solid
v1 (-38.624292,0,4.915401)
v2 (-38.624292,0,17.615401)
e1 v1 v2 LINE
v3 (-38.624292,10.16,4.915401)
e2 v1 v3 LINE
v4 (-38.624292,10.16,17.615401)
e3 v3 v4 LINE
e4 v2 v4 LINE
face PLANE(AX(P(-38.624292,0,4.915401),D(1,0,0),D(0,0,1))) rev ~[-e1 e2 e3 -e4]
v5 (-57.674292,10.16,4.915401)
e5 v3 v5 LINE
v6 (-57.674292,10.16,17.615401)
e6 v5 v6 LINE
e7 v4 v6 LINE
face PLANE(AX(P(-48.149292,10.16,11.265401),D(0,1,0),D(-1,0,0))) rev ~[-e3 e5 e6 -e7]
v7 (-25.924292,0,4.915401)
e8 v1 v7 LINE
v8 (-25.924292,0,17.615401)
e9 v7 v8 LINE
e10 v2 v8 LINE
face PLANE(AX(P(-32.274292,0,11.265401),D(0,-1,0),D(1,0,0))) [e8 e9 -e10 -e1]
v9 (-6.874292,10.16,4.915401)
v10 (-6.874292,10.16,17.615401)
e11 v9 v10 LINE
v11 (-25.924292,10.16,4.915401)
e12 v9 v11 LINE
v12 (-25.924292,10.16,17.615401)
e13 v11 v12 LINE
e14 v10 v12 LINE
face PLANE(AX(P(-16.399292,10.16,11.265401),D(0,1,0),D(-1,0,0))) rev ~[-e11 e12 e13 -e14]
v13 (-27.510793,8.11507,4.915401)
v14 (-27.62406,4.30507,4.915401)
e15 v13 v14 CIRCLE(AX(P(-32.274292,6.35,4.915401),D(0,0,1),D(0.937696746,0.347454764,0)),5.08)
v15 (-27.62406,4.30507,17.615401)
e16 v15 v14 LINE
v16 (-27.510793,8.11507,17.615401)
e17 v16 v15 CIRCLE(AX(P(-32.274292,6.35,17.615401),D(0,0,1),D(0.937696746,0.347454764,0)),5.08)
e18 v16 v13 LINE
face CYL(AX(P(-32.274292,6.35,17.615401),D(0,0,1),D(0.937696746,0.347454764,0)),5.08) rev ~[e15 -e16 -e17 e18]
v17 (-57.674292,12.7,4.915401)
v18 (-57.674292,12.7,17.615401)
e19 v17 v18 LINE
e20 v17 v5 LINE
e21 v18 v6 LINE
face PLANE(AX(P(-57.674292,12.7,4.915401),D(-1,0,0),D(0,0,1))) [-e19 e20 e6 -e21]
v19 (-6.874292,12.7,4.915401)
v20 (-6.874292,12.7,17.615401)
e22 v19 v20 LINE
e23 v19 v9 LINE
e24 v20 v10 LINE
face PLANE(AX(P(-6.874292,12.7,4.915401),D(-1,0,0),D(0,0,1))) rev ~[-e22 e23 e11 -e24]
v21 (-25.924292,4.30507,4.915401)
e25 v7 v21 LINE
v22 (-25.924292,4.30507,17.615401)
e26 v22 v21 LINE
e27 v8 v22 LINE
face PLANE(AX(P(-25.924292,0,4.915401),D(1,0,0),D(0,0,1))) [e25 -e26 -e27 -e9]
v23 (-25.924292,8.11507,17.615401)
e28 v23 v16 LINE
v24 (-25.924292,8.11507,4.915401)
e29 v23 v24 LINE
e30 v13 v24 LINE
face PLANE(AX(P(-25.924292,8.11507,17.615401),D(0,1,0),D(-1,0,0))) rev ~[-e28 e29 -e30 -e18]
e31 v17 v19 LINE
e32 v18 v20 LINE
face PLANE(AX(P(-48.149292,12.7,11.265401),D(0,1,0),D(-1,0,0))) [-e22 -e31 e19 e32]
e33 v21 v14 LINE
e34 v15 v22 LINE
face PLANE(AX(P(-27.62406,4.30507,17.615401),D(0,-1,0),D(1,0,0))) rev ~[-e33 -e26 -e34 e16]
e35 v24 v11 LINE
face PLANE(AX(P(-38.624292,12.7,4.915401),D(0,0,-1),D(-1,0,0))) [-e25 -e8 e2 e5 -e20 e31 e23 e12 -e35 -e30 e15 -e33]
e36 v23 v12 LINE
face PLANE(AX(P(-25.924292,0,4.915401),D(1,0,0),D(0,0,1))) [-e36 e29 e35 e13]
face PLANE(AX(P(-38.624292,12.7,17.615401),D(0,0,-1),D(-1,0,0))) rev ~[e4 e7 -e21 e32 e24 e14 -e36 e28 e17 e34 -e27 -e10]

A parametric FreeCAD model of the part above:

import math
import FreeCAD as App
import Part
import Sketcher
from FreeCAD import Vector
Q = App.Units.Quantity


def add_polygon(sketch, points):
    """Adds a closed chain of lines whose ends are joined by coincident constraints."""
    first, n = sketch.GeometryCount, len(points)
    for a, b in zip(points, points[1:] + points[:1]):
        sketch.addGeometry(Part.LineSegment(App.Vector(*a, 0), App.Vector(*b, 0)), False)
    for i in range(n):
        sketch.addConstraint(Sketcher.Constraint("Coincident", first + i, 2, first + (i + 1) % n, 1))

doc = App.newDocument("Part")
params = doc.addObject("Spreadsheet::Sheet", "Params")
for row, (alias, value) in enumerate([
    ("sketch1_width", "0.5 in"),
    ("pad1_length", "0.5 in"),
    ("sketch2_radius", "0.2 in"),
    ("sketch2_height", "0.15 in"),
    ("pocket1_length", "1.5 in"),
    ("sketch3_height", "0.5 in"),
    ("sketch3_width", "0.75 in"),
    ("pad2_length", "0.1 in"),
], start=1):
    params.set(f"A{row}", alias)
    params.set(f"B{row}", "=" + value)
    params.setAlias(f"B{row}", alias)

body = doc.addObject("PartDesign::Body", "Body")

# Sketch on XZ plane
sketch1 = doc.addObject("Sketcher::SketchObject", "Sketch")
body.addObject(sketch1)
sketch1.AttachmentSupport = (doc.XZ_Plane, [""])
sketch1.MapMode = "FlatFace"
add_polygon(sketch1, [(-39, 18), (-39, 5), (-26, 5), (-26, 18)])  # lines 0-3
sketch1.addConstraint([
    Sketcher.Constraint("Vertical", 0),
    Sketcher.Constraint("Horizontal", 1),
    Sketcher.Constraint("Vertical", 2),
    Sketcher.Constraint("Horizontal", 3),
    Sketcher.Constraint("Equal", 3, 0),
    Sketcher.Constraint("DistanceX", 1, 1, 1, 2, Q("0.5 in")),
    Sketcher.Constraint("DistanceY", -1, 1, 0, 2, Q("4.915401 mm")),
    Sketcher.Constraint("DistanceX", 0, 2, -1, 1, Q("38.624292 mm")),
])
sketch1.setExpression("Constraints[9]", "Params.sketch1_width")
pad1 = doc.addObject("PartDesign::Pad", "Pad")
body.addObject(pad1)
pad1.Profile = sketch1
pad1.setExpression("Length", "Params.pad1_length")
pad1.Reversed = True

# Sketch on XY plane
sketch2 = doc.addObject("Sketcher::SketchObject", "Sketch001")
body.addObject(sketch2)
sketch2.AttachmentSupport = (doc.XY_Plane, [""])
sketch2.MapMode = "FlatFace"
sketch2.AttachmentOffset = App.Placement(Vector(0, 0, 17.615401), App.Rotation())
sketch2.addGeometry([
    Part.LineSegment(Vector(-25.9, 8.1, 0), Vector(-27.5, 8.1, 0)),
    Part.ArcOfCircle(Part.Circle(Vector(-32.3, 6.3, 0), Vector(0, 0, 1), 5.1), math.radians(20), math.radians(336)),
    Part.LineSegment(Vector(-27.6, 4.3, 0), Vector(-25.9, 4.3, 0)),
    Part.LineSegment(Vector(-25.9, 4.3, 0), Vector(-25.9, 8.1, 0)),
], False)
sketch2.addConstraint([
    Sketcher.Constraint("Coincident", 0, 2, 1, 1),
    Sketcher.Constraint("Coincident", 1, 2, 2, 1),
    Sketcher.Constraint("Coincident", 2, 2, 3, 1),
    Sketcher.Constraint("Coincident", 3, 2, 0, 1),
    Sketcher.Constraint("Horizontal", 0),
    Sketcher.Constraint("Horizontal", 2),
    Sketcher.Constraint("Vertical", 3),
    Sketcher.Constraint("Radius", 1, Q("0.2 in")),
    Sketcher.Constraint("DistanceY", 3, 1, 3, 2, Q("0.15 in")),
    Sketcher.Constraint("DistanceY", -1, 1, 1, 3, Q("0.25 in")),
    Sketcher.Constraint("DistanceX", 1, 3, 2, 2, Q("0.25 in")),
    Sketcher.Constraint("DistanceX", 0, 2, 0, 1, Q("1.586501 mm")),
    Sketcher.Constraint("DistanceX", 1, 2, -1, 1, Q("27.62406 mm")),
])
sketch2.setExpression("Constraints[7]", "Params.sketch2_radius")
sketch2.setExpression("Constraints[8]", "Params.sketch2_height")
pocket1 = doc.addObject("PartDesign::Pocket", "Pocket")
body.addObject(pocket1)
pocket1.Profile = sketch2
pocket1.setExpression("Length", "Params.pocket1_length")

# Sketch on XZ plane
sketch3 = doc.addObject("Sketcher::SketchObject", "Sketch002")
body.addObject(sketch3)
sketch3.AttachmentSupport = (doc.XZ_Plane, [""])
sketch3.MapMode = "FlatFace"
sketch3.AttachmentOffset = App.Placement(Vector(0, 0, -0.5 * 25.4), App.Rotation())
add_polygon(sketch3, [(-39, 18), (-39, 5), (-58, 5), (-58, 18)])  # lines 0-3
add_polygon(sketch3, [(-7, 18), (-7, 5), (-26, 5), (-26, 18)])  # lines 4-7
sketch3.addConstraint([
    Sketcher.Constraint("Vertical", 0),
    Sketcher.Constraint("Horizontal", 1),
    Sketcher.Constraint("Vertical", 2),
    Sketcher.Constraint("Horizontal", 3),
    Sketcher.Constraint("Vertical", 4),
    Sketcher.Constraint("Horizontal", 5),
    Sketcher.Constraint("Vertical", 6),
    Sketcher.Constraint("Horizontal", 7),
    Sketcher.Constraint("Horizontal", 1, 2, 4, 2),
    Sketcher.Constraint("Horizontal", 3, 2, 6, 2),
    Sketcher.Constraint("Equal", 3, 5),
    Sketcher.Constraint("DistanceY", 0, 2, 0, 1, Q("0.5 in")),
    Sketcher.Constraint("DistanceX", 1, 2, 4, 2, Q("2 in")),
    Sketcher.Constraint("DistanceX", 1, 2, 1, 1, Q("0.75 in")),
    Sketcher.Constraint("DistanceY", -1, 1, 0, 2, Q("4.915401 mm")),
    Sketcher.Constraint("DistanceX", 0, 2, -1, 1, Q("38.624292 mm")),
])
sketch3.setExpression("Constraints[19]", "Params.sketch3_height")
sketch3.setExpression("Constraints[21]", "Params.sketch3_width")
pad2 = doc.addObject("PartDesign::Pad", "Pad001")
body.addObject(pad2)
pad2.Profile = sketch3
pad2.setExpression("Length", "Params.pad2_length")

doc.recompute()
